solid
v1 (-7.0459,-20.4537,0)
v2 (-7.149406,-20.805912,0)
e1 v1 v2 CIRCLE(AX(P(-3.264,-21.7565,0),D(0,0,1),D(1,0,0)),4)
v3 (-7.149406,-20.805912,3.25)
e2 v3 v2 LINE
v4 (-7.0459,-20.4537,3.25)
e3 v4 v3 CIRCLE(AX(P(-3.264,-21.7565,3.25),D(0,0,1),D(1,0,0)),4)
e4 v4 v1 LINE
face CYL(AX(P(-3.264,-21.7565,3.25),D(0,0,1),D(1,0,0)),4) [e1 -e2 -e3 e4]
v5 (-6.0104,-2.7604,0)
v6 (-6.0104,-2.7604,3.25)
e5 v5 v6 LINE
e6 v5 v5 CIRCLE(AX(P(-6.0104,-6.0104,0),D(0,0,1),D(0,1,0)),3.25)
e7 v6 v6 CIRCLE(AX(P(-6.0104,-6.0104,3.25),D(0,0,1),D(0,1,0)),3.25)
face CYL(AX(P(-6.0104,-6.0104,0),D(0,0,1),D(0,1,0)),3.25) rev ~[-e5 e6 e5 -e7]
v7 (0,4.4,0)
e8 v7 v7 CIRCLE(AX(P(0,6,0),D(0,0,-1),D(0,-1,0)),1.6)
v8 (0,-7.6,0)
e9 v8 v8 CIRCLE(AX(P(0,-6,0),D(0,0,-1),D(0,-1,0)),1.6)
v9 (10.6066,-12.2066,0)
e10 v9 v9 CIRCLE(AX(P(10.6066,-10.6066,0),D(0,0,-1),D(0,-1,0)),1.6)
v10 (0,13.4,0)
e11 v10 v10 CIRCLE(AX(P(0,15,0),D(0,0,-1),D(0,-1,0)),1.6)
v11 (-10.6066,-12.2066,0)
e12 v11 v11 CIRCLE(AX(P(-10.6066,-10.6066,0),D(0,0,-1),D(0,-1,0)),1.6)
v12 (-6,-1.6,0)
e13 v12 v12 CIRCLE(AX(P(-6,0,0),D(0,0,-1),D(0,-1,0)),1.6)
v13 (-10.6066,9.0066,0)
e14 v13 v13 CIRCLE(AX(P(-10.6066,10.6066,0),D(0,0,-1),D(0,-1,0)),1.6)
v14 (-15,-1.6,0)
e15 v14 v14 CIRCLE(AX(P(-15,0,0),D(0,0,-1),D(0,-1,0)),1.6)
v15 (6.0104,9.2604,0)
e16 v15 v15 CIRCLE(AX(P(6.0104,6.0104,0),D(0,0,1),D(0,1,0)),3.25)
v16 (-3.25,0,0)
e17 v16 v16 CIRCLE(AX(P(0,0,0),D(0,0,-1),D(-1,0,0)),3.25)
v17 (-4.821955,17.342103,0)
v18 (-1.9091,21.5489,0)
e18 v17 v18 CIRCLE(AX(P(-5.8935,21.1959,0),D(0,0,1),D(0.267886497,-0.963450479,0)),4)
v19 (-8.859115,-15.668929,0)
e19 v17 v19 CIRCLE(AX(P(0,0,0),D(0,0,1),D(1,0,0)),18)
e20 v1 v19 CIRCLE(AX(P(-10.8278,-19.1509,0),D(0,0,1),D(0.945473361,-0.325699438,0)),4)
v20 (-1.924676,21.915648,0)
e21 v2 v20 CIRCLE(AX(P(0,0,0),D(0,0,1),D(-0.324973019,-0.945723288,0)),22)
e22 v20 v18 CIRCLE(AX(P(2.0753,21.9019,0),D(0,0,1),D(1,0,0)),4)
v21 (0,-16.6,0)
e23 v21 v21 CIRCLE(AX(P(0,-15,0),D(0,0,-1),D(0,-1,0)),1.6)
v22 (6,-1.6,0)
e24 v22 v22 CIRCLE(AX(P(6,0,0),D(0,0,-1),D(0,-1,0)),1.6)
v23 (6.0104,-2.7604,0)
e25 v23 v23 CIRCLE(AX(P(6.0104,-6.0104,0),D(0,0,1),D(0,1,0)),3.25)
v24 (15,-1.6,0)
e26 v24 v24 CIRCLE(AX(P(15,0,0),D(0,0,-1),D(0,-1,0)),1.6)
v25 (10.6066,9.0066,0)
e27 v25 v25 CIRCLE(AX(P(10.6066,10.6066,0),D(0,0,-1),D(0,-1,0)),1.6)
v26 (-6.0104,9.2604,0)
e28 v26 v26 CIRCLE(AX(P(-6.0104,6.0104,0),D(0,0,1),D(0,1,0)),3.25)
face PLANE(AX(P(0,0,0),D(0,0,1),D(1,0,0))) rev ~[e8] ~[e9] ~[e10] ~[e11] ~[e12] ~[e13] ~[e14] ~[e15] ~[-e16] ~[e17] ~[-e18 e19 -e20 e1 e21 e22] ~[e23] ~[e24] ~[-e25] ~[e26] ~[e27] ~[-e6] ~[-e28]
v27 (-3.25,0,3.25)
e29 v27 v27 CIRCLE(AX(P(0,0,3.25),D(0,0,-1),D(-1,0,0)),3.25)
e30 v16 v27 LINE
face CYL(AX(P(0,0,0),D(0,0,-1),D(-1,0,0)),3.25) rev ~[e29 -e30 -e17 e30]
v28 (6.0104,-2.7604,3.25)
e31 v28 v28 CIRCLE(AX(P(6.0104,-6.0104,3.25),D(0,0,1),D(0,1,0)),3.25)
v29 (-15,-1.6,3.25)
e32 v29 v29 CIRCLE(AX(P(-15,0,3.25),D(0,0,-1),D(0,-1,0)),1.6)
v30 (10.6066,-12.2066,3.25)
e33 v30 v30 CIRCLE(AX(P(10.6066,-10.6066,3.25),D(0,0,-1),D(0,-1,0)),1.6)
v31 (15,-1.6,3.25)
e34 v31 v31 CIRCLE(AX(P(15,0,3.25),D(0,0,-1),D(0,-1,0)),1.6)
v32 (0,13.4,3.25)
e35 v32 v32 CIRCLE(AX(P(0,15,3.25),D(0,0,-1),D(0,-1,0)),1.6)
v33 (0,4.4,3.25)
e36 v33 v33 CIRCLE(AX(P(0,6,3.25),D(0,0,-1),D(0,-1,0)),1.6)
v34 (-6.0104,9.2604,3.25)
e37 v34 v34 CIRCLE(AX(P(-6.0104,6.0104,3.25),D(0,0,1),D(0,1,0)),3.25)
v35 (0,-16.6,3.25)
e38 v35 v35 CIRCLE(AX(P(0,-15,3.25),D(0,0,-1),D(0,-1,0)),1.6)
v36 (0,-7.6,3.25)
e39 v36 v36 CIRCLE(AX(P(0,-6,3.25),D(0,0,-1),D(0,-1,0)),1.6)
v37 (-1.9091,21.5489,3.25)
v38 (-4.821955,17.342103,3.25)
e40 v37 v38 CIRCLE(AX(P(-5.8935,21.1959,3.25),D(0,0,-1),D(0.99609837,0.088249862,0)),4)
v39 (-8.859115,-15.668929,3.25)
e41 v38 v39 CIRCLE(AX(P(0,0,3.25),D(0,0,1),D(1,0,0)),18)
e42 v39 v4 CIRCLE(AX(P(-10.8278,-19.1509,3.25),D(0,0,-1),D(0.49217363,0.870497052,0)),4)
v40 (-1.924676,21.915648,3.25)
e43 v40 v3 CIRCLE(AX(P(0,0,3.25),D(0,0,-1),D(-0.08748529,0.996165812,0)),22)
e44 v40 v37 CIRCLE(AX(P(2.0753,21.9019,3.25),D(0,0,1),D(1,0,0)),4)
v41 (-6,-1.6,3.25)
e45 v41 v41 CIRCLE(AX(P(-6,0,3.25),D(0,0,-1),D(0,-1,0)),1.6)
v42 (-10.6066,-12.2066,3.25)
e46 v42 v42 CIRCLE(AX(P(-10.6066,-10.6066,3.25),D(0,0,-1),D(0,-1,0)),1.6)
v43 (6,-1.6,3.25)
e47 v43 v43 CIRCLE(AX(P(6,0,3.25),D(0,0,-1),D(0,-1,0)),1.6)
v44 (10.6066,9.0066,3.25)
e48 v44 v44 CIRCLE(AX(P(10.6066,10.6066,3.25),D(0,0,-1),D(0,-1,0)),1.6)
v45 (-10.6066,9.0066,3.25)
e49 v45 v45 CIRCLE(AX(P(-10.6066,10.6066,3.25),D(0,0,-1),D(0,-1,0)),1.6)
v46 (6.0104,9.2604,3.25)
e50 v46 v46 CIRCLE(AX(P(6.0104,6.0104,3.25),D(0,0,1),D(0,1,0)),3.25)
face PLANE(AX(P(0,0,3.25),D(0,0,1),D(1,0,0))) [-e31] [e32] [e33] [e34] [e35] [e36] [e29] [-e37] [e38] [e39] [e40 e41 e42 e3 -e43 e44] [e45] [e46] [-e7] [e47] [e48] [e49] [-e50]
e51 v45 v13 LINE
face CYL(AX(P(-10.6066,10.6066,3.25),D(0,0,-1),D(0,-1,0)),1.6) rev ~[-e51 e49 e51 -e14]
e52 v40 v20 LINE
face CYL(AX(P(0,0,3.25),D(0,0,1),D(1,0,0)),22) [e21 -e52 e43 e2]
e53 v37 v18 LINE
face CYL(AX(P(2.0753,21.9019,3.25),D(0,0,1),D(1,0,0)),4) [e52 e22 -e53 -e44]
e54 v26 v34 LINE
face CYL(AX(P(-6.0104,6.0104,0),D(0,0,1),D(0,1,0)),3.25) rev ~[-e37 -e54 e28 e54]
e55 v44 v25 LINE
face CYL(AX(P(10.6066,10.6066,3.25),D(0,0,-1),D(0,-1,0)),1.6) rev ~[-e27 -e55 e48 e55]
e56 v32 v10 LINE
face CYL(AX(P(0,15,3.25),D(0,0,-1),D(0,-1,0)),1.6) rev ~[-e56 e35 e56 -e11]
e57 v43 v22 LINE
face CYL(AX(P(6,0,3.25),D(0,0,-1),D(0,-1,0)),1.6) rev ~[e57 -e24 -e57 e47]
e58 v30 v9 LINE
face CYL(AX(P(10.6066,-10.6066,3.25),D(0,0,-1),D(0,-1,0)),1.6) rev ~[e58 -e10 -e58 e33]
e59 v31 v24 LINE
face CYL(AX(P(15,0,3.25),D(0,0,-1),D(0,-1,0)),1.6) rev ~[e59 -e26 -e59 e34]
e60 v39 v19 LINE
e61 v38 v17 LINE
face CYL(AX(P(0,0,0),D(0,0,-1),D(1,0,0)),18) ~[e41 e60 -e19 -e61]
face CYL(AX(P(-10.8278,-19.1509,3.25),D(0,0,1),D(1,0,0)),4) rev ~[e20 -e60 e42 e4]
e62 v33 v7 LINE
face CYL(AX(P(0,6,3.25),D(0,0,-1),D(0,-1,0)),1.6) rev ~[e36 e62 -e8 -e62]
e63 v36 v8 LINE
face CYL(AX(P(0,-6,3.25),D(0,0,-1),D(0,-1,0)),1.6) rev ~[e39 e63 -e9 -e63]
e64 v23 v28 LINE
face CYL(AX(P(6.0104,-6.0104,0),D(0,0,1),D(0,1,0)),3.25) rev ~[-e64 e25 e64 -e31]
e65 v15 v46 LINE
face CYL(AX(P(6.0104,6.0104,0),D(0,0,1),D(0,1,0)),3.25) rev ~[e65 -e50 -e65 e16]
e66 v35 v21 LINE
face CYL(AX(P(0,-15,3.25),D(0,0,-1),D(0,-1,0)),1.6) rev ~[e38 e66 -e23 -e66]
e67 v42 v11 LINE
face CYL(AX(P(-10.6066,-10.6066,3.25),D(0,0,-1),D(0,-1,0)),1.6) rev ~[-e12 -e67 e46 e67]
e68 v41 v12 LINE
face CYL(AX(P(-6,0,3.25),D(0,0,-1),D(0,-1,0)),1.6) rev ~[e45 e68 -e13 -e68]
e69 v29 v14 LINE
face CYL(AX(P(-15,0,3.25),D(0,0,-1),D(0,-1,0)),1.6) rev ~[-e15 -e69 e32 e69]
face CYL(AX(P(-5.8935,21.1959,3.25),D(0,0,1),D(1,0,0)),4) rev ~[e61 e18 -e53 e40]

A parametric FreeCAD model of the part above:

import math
import FreeCAD as App
import Part
import Sketcher

V = App.Vector
Q = App.Units.Quantity

doc = App.newDocument("Part")
params = doc.addObject("Spreadsheet::Sheet", "Params")
for row, (alias, value) in enumerate([
    ("sketch1_diameter", "36 mm"),
    ("pad1_length", "3.25 mm"),
    ("sketch2_diameter", "3.2 mm"),
    ("hole_diameter", "3.2 mm"),
    ("sketch3_diameter", "3.2 mm"),
    ("hole2_diameter", "3.2 mm"),
    ("hole2_cbore_diameter", "6.5 mm"),
    ("hole2_cbore_depth", "10 mm"),
    ("sketch4_diameter", "6.5 mm"),
    ("pocket1_length", "8 mm"),
    ("sketch5_diameter", "3.2 mm"),
    ("hole3_diameter", "3.2 mm"),
    ("sketch6_radius", "4 mm"),
    ("sketch6_radius2", "22 mm"),
    ("sketch6_radius3", "18 mm"),
    ("pad2_length", "3.25 mm"),
], start=1):
    params.set(f"A{row}", alias)
    params.set(f"B{row}", "=" + value)
    params.setAlias(f"B{row}", alias)

body = doc.addObject("PartDesign::Body", "Body")

sketch1 = body.newObject("Sketcher::SketchObject", "Sketch")
sketch1.AttachmentSupport = (doc.getObject("XY_Plane"), [""])
sketch1.MapMode = "FlatFace"
sketch1.addGeometry(Part.Circle(V(0, 0, 0), V(0, 0, 1), 18), False)
sketch1.addConstraint([
    Sketcher.Constraint("Coincident", 0, 3, -1, 1),
    Sketcher.Constraint("Diameter", 0, Q("36 mm")),
])
sketch1.setExpression("Constraints[1]", "Params.sketch1_diameter")
pad1 = body.newObject("PartDesign::Pad", "Pad")
pad1.Profile = sketch1
pad1.setExpression("Length", "Params.pad1_length")

sketch2 = body.newObject("Sketcher::SketchObject", "Sketch001")
sketch2.AttachmentSupport = (doc.getObject("XY_Plane"), [""])
sketch2.MapMode = "FlatFace"
sketch2.AttachmentOffset = App.Placement(V(0, 0, 3.25), App.Rotation())
sketch2.addGeometry([
    Part.Circle(V(0, 6, 0), V(0, 0, 1), 1.6),
    Part.Circle(V(-6, 0, 0), V(0, 0, 1), 1.6),
    Part.Circle(V(0, -6, 0), V(0, 0, 1), 1.6),
    Part.Circle(V(6, 0, 0), V(0, 0, 1), 1.6),
], False)
sketch2.addConstraint([
    Sketcher.Constraint("Equal", 0, 1),
    Sketcher.Constraint("Equal", 1, 2),
    Sketcher.Constraint("Equal", 2, 3),
    Sketcher.Constraint("Symmetric", 0, 3, 2, 3, -1, 1),
    Sketcher.Constraint("Symmetric", 1, 3, 3, 3, -1, 1),
    Sketcher.Constraint("PointOnObject", 0, 3, -2),
    Sketcher.Constraint("PointOnObject", 1, 3, -1),
    Sketcher.Constraint("Diameter", 0, Q("3.2 mm")),
    Sketcher.Constraint("DistanceY", -1, 1, 0, 3, Q("6 mm")),
    Sketcher.Constraint("DistanceX", 1, 3, -1, 1, Q("6 mm")),
])
sketch2.setExpression("Constraints[7]", "Params.sketch2_diameter")
doc.recompute()
hole = body.newObject("PartDesign::Hole", "Hole")
hole.Profile = sketch2
hole.ThreadType = "None"
hole.setExpression("Diameter", "Params.hole_diameter")
hole.DepthType = "ThroughAll"

sketch3 = body.newObject("Sketcher::SketchObject", "Sketch002")
sketch3.AttachmentSupport = (doc.getObject("XY_Plane"), [""])
sketch3.MapMode = "FlatFace"
sketch3.addGeometry([
    Part.Circle(V(6, 6, 0), V(0, 0, 1), 1.6),
    Part.Circle(V(6, -6, 0), V(0, 0, 1), 1.6),
    Part.Circle(V(-6, -6, 0), V(0, 0, 1), 1.6),
    Part.Circle(V(-6, 6, 0), V(0, 0, 1), 1.6),
], False)
sketch3.addConstraint([
    Sketcher.Constraint("Equal", 0, 1),
    Sketcher.Constraint("Equal", 1, 2),
    Sketcher.Constraint("Equal", 2, 3),
    Sketcher.Constraint("Symmetric", 0, 3, 2, 3, -1, 1),
    Sketcher.Constraint("Symmetric", 1, 3, 3, 3, -1, 1),
    Sketcher.Constraint("Symmetric", 1, 3, 2, 3, -2),
    Sketcher.Constraint("Diameter", 0, Q("3.2 mm")),
    Sketcher.Constraint("DistanceX", -1, 1, 0, 3, Q("6.0104 mm")),
    Sketcher.Constraint("DistanceY", -1, 1, 0, 3, Q("6.0104 mm")),
])
sketch3.setExpression("Constraints[6]", "Params.sketch3_diameter")
doc.recompute()
hole2 = body.newObject("PartDesign::Hole", "Hole001")
hole2.Profile = sketch3
hole2.ThreadType = "None"
hole2.setExpression("Diameter", "Params.hole2_diameter")
hole2.DepthType = "ThroughAll"
hole2.HoleCutType = "Counterbore"
hole2.setExpression("HoleCutDiameter", "Params.hole2_cbore_diameter")
hole2.setExpression("HoleCutDepth", "Params.hole2_cbore_depth")
hole2.Reversed = True

sketch4 = body.newObject("Sketcher::SketchObject", "Sketch003")
sketch4.AttachmentSupport = (doc.getObject("XY_Plane"), [""])
sketch4.MapMode = "FlatFace"
sketch4.addGeometry(Part.Circle(V(0, 0, 0), V(0, 0, 1), 3.2), False)
sketch4.addConstraint([
    Sketcher.Constraint("Coincident", 0, 3, -1, 1),
    Sketcher.Constraint("Diameter", 0, Q("6.5 mm")),
])
sketch4.setExpression("Constraints[1]", "Params.sketch4_diameter")
pocket1 = body.newObject("PartDesign::Pocket", "Pocket")
pocket1.Profile = sketch4
pocket1.setExpression("Length", "Params.pocket1_length")
pocket1.Reversed = True

sketch5 = body.newObject("Sketcher::SketchObject", "Sketch004")
sketch5.AttachmentSupport = (doc.getObject("XY_Plane"), [""])
sketch5.MapMode = "FlatFace"
sketch5.AttachmentOffset = App.Placement(V(0, 0, 3.25), App.Rotation())
sketch5.addGeometry([
    Part.Circle(V(0, -15, 0), V(0, 0, 1), 1.6),
    Part.Circle(V(10.6, -10.6, 0), V(0, 0, 1), 1.6),
    Part.Circle(V(15, 0, 0), V(0, 0, 1), 1.6),
    Part.Circle(V(10.6, 10.6, 0), V(0, 0, 1), 1.6),
    Part.Circle(V(0, 15, 0), V(0, 0, 1), 1.6),
    Part.Circle(V(-10.6, 10.6, 0), V(0, 0, 1), 1.6),
    Part.Circle(V(-15, 0, 0), V(0, 0, 1), 1.6),
    Part.Circle(V(-10.6, -10.6, 0), V(0, 0, 1), 1.6),
], False)
sketch5.addConstraint([
    Sketcher.Constraint("Equal", 0, 1),
    Sketcher.Constraint("Equal", 1, 2),
    Sketcher.Constraint("Equal", 2, 3),
    Sketcher.Constraint("Equal", 3, 4),
    Sketcher.Constraint("Equal", 4, 5),
    Sketcher.Constraint("Equal", 5, 6),
    Sketcher.Constraint("Equal", 6, 7),
    Sketcher.Constraint("Symmetric", 0, 3, 4, 3, -1, 1),
    Sketcher.Constraint("Symmetric", 1, 3, 5, 3, -1, 1),
    Sketcher.Constraint("Symmetric", 2, 3, 6, 3, -1, 1),
    Sketcher.Constraint("Symmetric", 3, 3, 7, 3, -1, 1),
    Sketcher.Constraint("Symmetric", 3, 3, 5, 3, -2),
    Sketcher.Constraint("PointOnObject", 0, 3, -2),
    Sketcher.Constraint("PointOnObject", 2, 3, -1),
    Sketcher.Constraint("Diameter", 0, Q("3.2 mm")),
    Sketcher.Constraint("DistanceY", 0, 3, -1, 1, Q("15 mm")),
    Sketcher.Constraint("DistanceX", -1, 1, 2, 3, Q("15 mm")),
    Sketcher.Constraint("DistanceX", -1, 1, 1, 3, Q("10.6066 mm")),
    Sketcher.Constraint("DistanceY", 1, 3, -1, 1, Q("10.6066 mm")),
])
sketch5.setExpression("Constraints[14]", "Params.sketch5_diameter")
doc.recompute()
hole3 = body.newObject("PartDesign::Hole", "Hole002")
hole3.Profile = sketch5
hole3.ThreadType = "None"
hole3.setExpression("Diameter", "Params.hole3_diameter")
hole3.DepthType = "ThroughAll"

sketch6 = body.newObject("Sketcher::SketchObject", "Sketch005")
sketch6.AttachmentSupport = (doc.getObject("XY_Plane"), [""])
sketch6.MapMode = "FlatFace"
sketch6.AttachmentOffset = App.Placement(V(0, 0, 3.25), App.Rotation())
sketch6.addGeometry([
    Part.ArcOfCircle(Part.Circle(V(2.08, 21.9, 0), V(0, 0, 1), 4), math.radians(179.8), math.radians(185.06)),
    Part.ArcOfCircle(Part.Circle(V(-5.89, 21.2, 0), V(0, 0, 1), 4), math.radians(-74), math.radians(5)),
    Part.ArcOfCircle(Part.Circle(V(0, 0, 0), V(0, 0, 1), 18), math.radians(-119), math.radians(106)),
    Part.ArcOfCircle(Part.Circle(V(-10.83, -19.15, 0), V(0, 0, 1), 4), math.radians(-19), math.radians(61)),
    Part.ArcOfCircle(Part.Circle(V(-3.26, -21.76, 0), V(0, 0, 1), 4), math.radians(160.99), math.radians(166.25)),
    Part.ArcOfCircle(Part.Circle(V(0, 0, 0), V(0, 0, 1), 22), math.radians(-109), math.radians(95)),
], False)
sketch6.addConstraint([
    Sketcher.Constraint("Tangent", 0, 2, 1, 2),
    Sketcher.Constraint("Tangent", 1, 1, 2, 2),
    Sketcher.Constraint("Tangent", 2, 1, 3, 2),
    Sketcher.Constraint("Tangent", 3, 1, 4, 1),
    Sketcher.Constraint("Coincident", 4, 2, 5, 1),
    Sketcher.Constraint("Coincident", 5, 2, 0, 1),
    Sketcher.Constraint("Coincident", 2, 3, -1, 1),
    Sketcher.Constraint("Coincident", 5, 3, -1, 1),
    Sketcher.Constraint("Equal", 0, 1),
    Sketcher.Constraint("Equal", 1, 3),
    Sketcher.Constraint("Equal", 3, 4),
    Sketcher.Constraint("Radius", 0, Q("4 mm")),
    Sketcher.Constraint("Radius", 5, Q("22 mm")),
    Sketcher.Constraint("Radius", 2, Q("18 mm")),
    Sketcher.Constraint("DistanceY", -1, 1, 0, 3, Q("21.902 mm")),
    Sketcher.Constraint("DistanceY", -1, 1, 1, 3, Q("21.196 mm")),
    Sketcher.Constraint("DistanceY", 3, 3, -1, 1, Q("19.151 mm")),
    Sketcher.Constraint("DistanceX", 4, 3, -1, 1, Q("3.264 mm")),
])
sketch6.setExpression("Constraints[11]", "Params.sketch6_radius")
sketch6.setExpression("Constraints[12]", "Params.sketch6_radius2")
sketch6.setExpression("Constraints[13]", "Params.sketch6_radius3")
pad2 = body.newObject("PartDesign::Pad", "Pad001")
pad2.Profile = sketch6
pad2.setExpression("Length", "Params.pad2_length")
pad2.Reversed = True

doc.recompute()
